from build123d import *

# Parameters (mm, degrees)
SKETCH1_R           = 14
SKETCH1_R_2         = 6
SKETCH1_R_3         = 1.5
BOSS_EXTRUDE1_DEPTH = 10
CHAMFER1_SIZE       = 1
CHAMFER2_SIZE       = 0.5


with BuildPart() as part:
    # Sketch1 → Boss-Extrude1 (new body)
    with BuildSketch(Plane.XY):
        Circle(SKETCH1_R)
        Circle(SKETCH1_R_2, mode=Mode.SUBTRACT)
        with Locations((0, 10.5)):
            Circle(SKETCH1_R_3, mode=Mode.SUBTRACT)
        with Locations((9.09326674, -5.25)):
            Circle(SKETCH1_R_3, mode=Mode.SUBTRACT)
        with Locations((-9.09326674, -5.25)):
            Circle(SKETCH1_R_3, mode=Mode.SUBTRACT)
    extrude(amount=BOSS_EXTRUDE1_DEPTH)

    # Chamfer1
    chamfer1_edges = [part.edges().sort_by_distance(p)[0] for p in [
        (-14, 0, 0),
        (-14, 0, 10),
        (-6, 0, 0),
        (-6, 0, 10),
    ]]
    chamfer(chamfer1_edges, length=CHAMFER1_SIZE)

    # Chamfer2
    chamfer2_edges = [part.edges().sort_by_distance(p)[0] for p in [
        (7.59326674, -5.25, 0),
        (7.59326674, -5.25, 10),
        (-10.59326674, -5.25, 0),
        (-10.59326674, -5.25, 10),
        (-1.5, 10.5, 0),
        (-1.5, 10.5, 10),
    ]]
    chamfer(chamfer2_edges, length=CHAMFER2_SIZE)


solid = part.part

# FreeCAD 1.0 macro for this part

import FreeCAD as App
import Part
import Sketcher
from FreeCAD import Vector


def edges_at(feature, points):
    """Names of the edges that pass closest to the given points."""
    edges = feature.Shape.Edges
    near = lambda p: min(range(len(edges)), key=lambda i: edges[i].distToShape(Part.Vertex(*p))[0])
    return sorted({f"Edge{near(p) + 1}" for p in points})

doc = App.newDocument("Part")
body = doc.addObject("PartDesign::Body", "Body")

# Sketch on XY plane
sketch1 = doc.addObject("Sketcher::SketchObject", "Sketch")
body.addObject(sketch1)
sketch1.AttachmentSupport = (doc.XY_Plane, [""])
sketch1.MapMode = "FlatFace"
sketch1.addGeometry([
    Part.Circle(Vector(0, 0, 0), Vector(0, 0, 1), 14),  # 0
    Part.Circle(Vector(-9.1, -5.2, 0), Vector(0, 0, 1), 1.5),  # 1
    Part.Circle(Vector(9.1, -5.2, 0), Vector(0, 0, 1), 1.5),  # 2
    Part.Circle(Vector(0, 0, 0), Vector(0, 0, 1), 6),  # 3
    Part.Circle(Vector(0, 10.5, 0), Vector(0, 0, 1), 1.5),  # 4
], False)
sketch1.addConstraint([
    Sketcher.Constraint("Coincident", 0, 3, -1, 1),
    Sketcher.Constraint("Coincident", 3, 3, -1, 1),
    Sketcher.Constraint("Equal", 1, 2),
    Sketcher.Constraint("Equal", 2, 4),
    Sketcher.Constraint("Symmetric", 1, 3, 2, 3, -2),
    Sketcher.Constraint("PointOnObject", 4, 3, -2),
    Sketcher.Constraint("Diameter", 0, 28.0),
    Sketcher.Constraint("Diameter", 1, 3.0),
    Sketcher.Constraint("Diameter", 3, 12.0),
    Sketcher.Constraint("DistanceY", -1, 1, 4, 3, 10.5),
    Sketcher.Constraint("DistanceY", 1, 3, -1, 1, 5.25),
    Sketcher.Constraint("DistanceX", 1, 3, -1, 1, 9.093267),
])
pad1 = doc.addObject("PartDesign::Pad", "Pad")
body.addObject(pad1)
pad1.Profile = sketch1
pad1.Length = 10
doc.recompute()

chamfer = doc.addObject("PartDesign::Chamfer", "Chamfer")
body.addObject(chamfer)
chamfer.Base = (pad1, edges_at(pad1, [
    (-14, 0, 0),
    (-14, 0, 10),
    (-6, 0, 0),
    (-6, 0, 10),
]))
chamfer.Size = 1
doc.recompute()

chamfer2 = doc.addObject("PartDesign::Chamfer", "Chamfer001")
body.addObject(chamfer2)
chamfer2.Base = (chamfer, edges_at(chamfer, [
    (7.593, -5.25, 0),
    (7.593, -5.25, 10),
    (-10.593, -5.25, 0),
    (-10.593, -5.25, 10),
    (-1.5, 10.5, 0),
    (-1.5, 10.5, 10),
]))
chamfer2.Size = 0.5

doc.recompute()
